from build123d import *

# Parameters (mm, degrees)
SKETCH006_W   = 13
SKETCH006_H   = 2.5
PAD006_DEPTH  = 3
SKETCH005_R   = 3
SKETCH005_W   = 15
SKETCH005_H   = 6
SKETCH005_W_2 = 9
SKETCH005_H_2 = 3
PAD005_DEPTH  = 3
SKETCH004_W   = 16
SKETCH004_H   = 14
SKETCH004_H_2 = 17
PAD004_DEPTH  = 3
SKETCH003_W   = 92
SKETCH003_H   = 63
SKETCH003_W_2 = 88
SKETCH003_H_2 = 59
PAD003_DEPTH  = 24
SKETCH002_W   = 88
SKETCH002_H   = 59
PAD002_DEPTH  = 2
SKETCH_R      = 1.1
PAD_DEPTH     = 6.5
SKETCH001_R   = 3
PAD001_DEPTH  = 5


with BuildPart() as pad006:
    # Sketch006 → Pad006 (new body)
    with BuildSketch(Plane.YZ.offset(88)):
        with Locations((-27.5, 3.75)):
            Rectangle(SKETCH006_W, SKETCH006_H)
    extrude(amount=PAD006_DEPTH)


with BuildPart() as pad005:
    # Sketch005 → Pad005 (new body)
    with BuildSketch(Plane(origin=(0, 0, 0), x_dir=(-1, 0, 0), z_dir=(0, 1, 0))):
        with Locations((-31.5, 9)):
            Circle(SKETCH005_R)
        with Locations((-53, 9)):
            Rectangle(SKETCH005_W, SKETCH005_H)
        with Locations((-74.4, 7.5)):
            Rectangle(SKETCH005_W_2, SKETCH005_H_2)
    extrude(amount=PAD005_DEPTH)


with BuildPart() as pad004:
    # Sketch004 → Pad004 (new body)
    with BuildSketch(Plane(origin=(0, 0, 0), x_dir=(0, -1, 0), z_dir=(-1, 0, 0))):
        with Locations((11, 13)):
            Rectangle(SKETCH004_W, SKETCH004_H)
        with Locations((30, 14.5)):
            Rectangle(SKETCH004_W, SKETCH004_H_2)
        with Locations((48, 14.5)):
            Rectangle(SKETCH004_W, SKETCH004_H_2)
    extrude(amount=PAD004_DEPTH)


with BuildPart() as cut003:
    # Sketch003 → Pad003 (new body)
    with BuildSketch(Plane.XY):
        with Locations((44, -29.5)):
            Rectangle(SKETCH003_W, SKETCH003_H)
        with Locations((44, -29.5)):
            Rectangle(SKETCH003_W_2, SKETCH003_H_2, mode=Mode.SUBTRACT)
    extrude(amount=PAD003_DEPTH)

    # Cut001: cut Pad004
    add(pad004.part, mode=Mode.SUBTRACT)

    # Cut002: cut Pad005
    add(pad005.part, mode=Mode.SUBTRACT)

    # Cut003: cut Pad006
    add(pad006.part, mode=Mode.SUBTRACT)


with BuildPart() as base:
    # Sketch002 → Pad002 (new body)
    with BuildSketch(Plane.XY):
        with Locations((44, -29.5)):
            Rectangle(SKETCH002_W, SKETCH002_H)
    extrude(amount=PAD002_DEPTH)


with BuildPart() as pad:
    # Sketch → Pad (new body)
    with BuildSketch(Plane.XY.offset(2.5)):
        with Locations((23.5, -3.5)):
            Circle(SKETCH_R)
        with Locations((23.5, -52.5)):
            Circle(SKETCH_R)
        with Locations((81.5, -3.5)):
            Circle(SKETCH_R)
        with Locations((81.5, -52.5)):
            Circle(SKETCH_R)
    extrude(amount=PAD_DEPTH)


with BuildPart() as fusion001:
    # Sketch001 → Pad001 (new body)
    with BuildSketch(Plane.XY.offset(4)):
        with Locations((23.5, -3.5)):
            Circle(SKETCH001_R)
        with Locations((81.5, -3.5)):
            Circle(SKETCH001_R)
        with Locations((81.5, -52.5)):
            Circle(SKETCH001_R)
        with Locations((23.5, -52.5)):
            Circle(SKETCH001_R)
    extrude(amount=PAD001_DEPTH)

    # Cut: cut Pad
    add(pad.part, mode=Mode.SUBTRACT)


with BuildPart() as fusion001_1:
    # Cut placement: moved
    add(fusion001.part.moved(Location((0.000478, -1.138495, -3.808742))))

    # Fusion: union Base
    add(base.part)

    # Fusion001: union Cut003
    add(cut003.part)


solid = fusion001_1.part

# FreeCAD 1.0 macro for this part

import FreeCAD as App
import Part
import Sketcher

doc = App.newDocument("Part")
params = doc.addObject("Spreadsheet::Sheet", "Params")
for row, (alias, value) in enumerate([
    ("sketch1_width", "13 mm"),
    ("sketch1_height", "2.5 mm"),
    ("pad1_length", "3 mm"),
    ("sketch2_diameter", "6 mm"),
    ("sketch2_width", "15 mm"),
    ("sketch2_width2", "9 mm"),
    ("sketch2_height", "6 mm"),
    ("sketch2_height2", "3 mm"),
    ("pad2_length", "3 mm"),
    ("sketch3_width", "16 mm"),
    ("sketch3_height", "14 mm"),
    ("sketch3_height2", "17 mm"),
    ("pad3_length", "3 mm"),
    ("sketch4_width", "92 mm"),
    ("sketch4_width2", "88 mm"),
    ("sketch4_height", "63 mm"),
    ("sketch4_height2", "59 mm"),
    ("pad4_length", "24 mm"),
    ("sketch5_width", "88 mm"),
    ("sketch5_height", "59 mm"),
    ("pad5_length", "2 mm"),
    ("sketch6_diameter", "2.2 mm"),
    ("pad6_length", "6.5 mm"),
    ("sketch7_diameter", "6 mm"),
    ("pad7_length", "5 mm"),
], start=1):
    params.set(f"A{row}", alias)
    params.set(f"B{row}", "=" + value)
    params.setAlias(f"B{row}", alias)

body = doc.addObject("PartDesign::Body", "Body")

# Sketch on YZ plane
sketch1 = doc.addObject("Sketcher::SketchObject", "Sketch")
body.addObject(sketch1)
sketch1.AttachmentSupport = (doc.YZ_Plane, [""])
sketch1.MapMode = "FlatFace"
sketch1.AttachmentOffset = App.Placement(App.Vector(0, 0, 88), App.Rotation())
sketch1.addGeometry(Part.LineSegment(App.Vector(-34, 5, 0), App.Vector(-34, 2.5, 0)), False)
sketch1.addGeometry(Part.LineSegment(App.Vector(-34, 2.5, 0), App.Vector(-21, 2.5, 0)), False)
sketch1.addGeometry(Part.LineSegment(App.Vector(-21, 2.5, 0), App.Vector(-21, 5, 0)), False)
sketch1.addGeometry(Part.LineSegment(App.Vector(-21, 5, 0), App.Vector(-34, 5, 0)), False)
sketch1.addConstraint(Sketcher.Constraint("Coincident", 0, 2, 1, 1))
sketch1.addConstraint(Sketcher.Constraint("Coincident", 1, 2, 2, 1))
sketch1.addConstraint(Sketcher.Constraint("Coincident", 2, 2, 3, 1))
sketch1.addConstraint(Sketcher.Constraint("Coincident", 3, 2, 0, 1))
sketch1.addConstraint(Sketcher.Constraint("Vertical", 0))
sketch1.addConstraint(Sketcher.Constraint("Horizontal", 1))
sketch1.addConstraint(Sketcher.Constraint("Vertical", 2))
sketch1.addConstraint(Sketcher.Constraint("Horizontal", 3))
sketch1.addConstraint(Sketcher.Constraint("DistanceX", 1, 1, 1, 2, 13.0))
sketch1.addConstraint(Sketcher.Constraint("DistanceY", 0, 2, 0, 1, 2.5))
sketch1.addConstraint(Sketcher.Constraint("DistanceX", 0, 2, -1, 1, 34.0))
sketch1.addConstraint(Sketcher.Constraint("DistanceY", -1, 1, 2, 2, 5.0))
sketch1.setExpression("Constraints[8]", "Params.sketch1_width")
sketch1.setExpression("Constraints[9]", "Params.sketch1_height")
pad1 = doc.addObject("PartDesign::Pad", "Pad")
body.addObject(pad1)
pad1.Profile = sketch1
pad1.setExpression("Length", "Params.pad1_length")
body2 = doc.addObject("PartDesign::Body", "Body001")
body2.AllowCompound = True

# Sketch on XZ plane
sketch2 = doc.addObject("Sketcher::SketchObject", "Sketch001")
body2.addObject(sketch2)
sketch2.AttachmentSupport = (doc.getObject("XZ_Plane001"), [""])
sketch2.MapMode = "FlatFace"
sketch2.addGeometry(Part.Circle(App.Vector(31.5, 9, 0), App.Vector(0, 0, 1), 3), False)
sketch2.addGeometry(Part.LineSegment(App.Vector(60.5, 12, 0), App.Vector(60.5, 6, 0)), False)
sketch2.addGeometry(Part.LineSegment(App.Vector(60.5, 6, 0), App.Vector(45.5, 6, 0)), False)
sketch2.addGeometry(Part.LineSegment(App.Vector(45.5, 6, 0), App.Vector(45.5, 12, 0)), False)
sketch2.addGeometry(Part.LineSegment(App.Vector(45.5, 12, 0), App.Vector(60.5, 12, 0)), False)
sketch2.addGeometry(Part.LineSegment(App.Vector(78.9, 9, 0), App.Vector(78.9, 6, 0)), False)
sketch2.addGeometry(Part.LineSegment(App.Vector(78.9, 6, 0), App.Vector(69.9, 6, 0)), False)
sketch2.addGeometry(Part.LineSegment(App.Vector(69.9, 6, 0), App.Vector(69.9, 9, 0)), False)
sketch2.addGeometry(Part.LineSegment(App.Vector(69.9, 9, 0), App.Vector(78.9, 9, 0)), False)
sketch2.addConstraint(Sketcher.Constraint("Coincident", 1, 2, 2, 1))
sketch2.addConstraint(Sketcher.Constraint("Coincident", 2, 2, 3, 1))
sketch2.addConstraint(Sketcher.Constraint("Coincident", 3, 2, 4, 1))
sketch2.addConstraint(Sketcher.Constraint("Coincident", 4, 2, 1, 1))
sketch2.addConstraint(Sketcher.Constraint("Coincident", 5, 2, 6, 1))
sketch2.addConstraint(Sketcher.Constraint("Coincident", 6, 2, 7, 1))
sketch2.addConstraint(Sketcher.Constraint("Coincident", 7, 2, 8, 1))
sketch2.addConstraint(Sketcher.Constraint("Coincident", 8, 2, 5, 1))
sketch2.addConstraint(Sketcher.Constraint("Vertical", 1))
sketch2.addConstraint(Sketcher.Constraint("Horizontal", 2))
sketch2.addConstraint(Sketcher.Constraint("Vertical", 3))
sketch2.addConstraint(Sketcher.Constraint("Horizontal", 4))
sketch2.addConstraint(Sketcher.Constraint("Vertical", 5))
sketch2.addConstraint(Sketcher.Constraint("Horizontal", 6))
sketch2.addConstraint(Sketcher.Constraint("Vertical", 7))
sketch2.addConstraint(Sketcher.Constraint("Horizontal", 8))
sketch2.addConstraint(Sketcher.Constraint("Horizontal", 2, 2, 5, 2))
sketch2.addConstraint(Sketcher.Constraint("Horizontal", 0, 3, 7, 2))
sketch2.addConstraint(Sketcher.Constraint("Diameter", 0, 6.0))
sketch2.addConstraint(Sketcher.Constraint("DistanceX", 2, 2, 2, 1, 15.0))
sketch2.addConstraint(Sketcher.Constraint("DistanceX", 6, 2, 6, 1, 9.0))
sketch2.addConstraint(Sketcher.Constraint("DistanceY", 1, 2, 1, 1, 6.0))
sketch2.addConstraint(Sketcher.Constraint("DistanceY", 5, 2, 5, 1, 3.0))
sketch2.addConstraint(Sketcher.Constraint("DistanceY", -1, 1, 0, 3, 9.0))
sketch2.addConstraint(Sketcher.Constraint("DistanceX", 0, 3, 1, 2, 29.0))
sketch2.addConstraint(Sketcher.Constraint("DistanceX", -1, 1, 0, 3, 31.5))
sketch2.addConstraint(Sketcher.Constraint("DistanceX", -1, 1, 5, 2, 78.9))
sketch2.setExpression("Constraints[18]", "Params.sketch2_diameter")
sketch2.setExpression("Constraints[19]", "Params.sketch2_width")
sketch2.setExpression("Constraints[20]", "Params.sketch2_width2")
sketch2.setExpression("Constraints[21]", "Params.sketch2_height")
sketch2.setExpression("Constraints[22]", "Params.sketch2_height2")
pad2 = doc.addObject("PartDesign::Pad", "Pad001")
body2.addObject(pad2)
pad2.Profile = sketch2
pad2.setExpression("Length", "Params.pad2_length")
pad2.Reversed = True
body3 = doc.addObject("PartDesign::Body", "Body002")
body3.AllowCompound = True

# Sketch on YZ plane
sketch3 = doc.addObject("Sketcher::SketchObject", "Sketch002")
body3.addObject(sketch3)
sketch3.AttachmentSupport = (doc.getObject("YZ_Plane002"), [""])
sketch3.MapMode = "FlatFace"
sketch3.addGeometry(Part.LineSegment(App.Vector(-3, 20, 0), App.Vector(-3, 6, 0)), False)
sketch3.addGeometry(Part.LineSegment(App.Vector(-3, 6, 0), App.Vector(-19, 6, 0)), False)
sketch3.addGeometry(Part.LineSegment(App.Vector(-19, 6, 0), App.Vector(-19, 20, 0)), False)
sketch3.addGeometry(Part.LineSegment(App.Vector(-19, 20, 0), App.Vector(-3, 20, 0)), False)
sketch3.addGeometry(Part.LineSegment(App.Vector(-22, 23, 0), App.Vector(-22, 6, 0)), False)
sketch3.addGeometry(Part.LineSegment(App.Vector(-22, 6, 0), App.Vector(-38, 6, 0)), False)
sketch3.addGeometry(Part.LineSegment(App.Vector(-38, 6, 0), App.Vector(-38, 23, 0)), False)
sketch3.addGeometry(Part.LineSegment(App.Vector(-38, 23, 0), App.Vector(-22, 23, 0)), False)
sketch3.addGeometry(Part.LineSegment(App.Vector(-40, 23, 0), App.Vector(-40, 6, 0)), False)
sketch3.addGeometry(Part.LineSegment(App.Vector(-40, 6, 0), App.Vector(-56, 6, 0)), False)
sketch3.addGeometry(Part.LineSegment(App.Vector(-56, 6, 0), App.Vector(-56, 23, 0)), False)
sketch3.addGeometry(Part.LineSegment(App.Vector(-56, 23, 0), App.Vector(-40, 23, 0)), False)
sketch3.addConstraint(Sketcher.Constraint("Coincident", 0, 2, 1, 1))
sketch3.addConstraint(Sketcher.Constraint("Coincident", 1, 2, 2, 1))
sketch3.addConstraint(Sketcher.Constraint("Coincident", 2, 2, 3, 1))
sketch3.addConstraint(Sketcher.Constraint("Coincident", 3, 2, 0, 1))
sketch3.addConstraint(Sketcher.Constraint("Coincident", 4, 2, 5, 1))
sketch3.addConstraint(Sketcher.Constraint("Coincident", 5, 2, 6, 1))
sketch3.addConstraint(Sketcher.Constraint("Coincident", 6, 2, 7, 1))
sketch3.addConstraint(Sketcher.Constraint("Coincident", 7, 2, 4, 1))
sketch3.addConstraint(Sketcher.Constraint("Coincident", 8, 2, 9, 1))
sketch3.addConstraint(Sketcher.Constraint("Coincident", 9, 2, 10, 1))
sketch3.addConstraint(Sketcher.Constraint("Coincident", 10, 2, 11, 1))
sketch3.addConstraint(Sketcher.Constraint("Coincident", 11, 2, 8, 1))
sketch3.addConstraint(Sketcher.Constraint("Vertical", 0))
sketch3.addConstraint(Sketcher.Constraint("Horizontal", 1))
sketch3.addConstraint(Sketcher.Constraint("Vertical", 2))
sketch3.addConstraint(Sketcher.Constraint("Horizontal", 3))
sketch3.addConstraint(Sketcher.Constraint("Vertical", 4))
sketch3.addConstraint(Sketcher.Constraint("Horizontal", 5))
sketch3.addConstraint(Sketcher.Constraint("Vertical", 6))
sketch3.addConstraint(Sketcher.Constraint("Horizontal", 7))
sketch3.addConstraint(Sketcher.Constraint("Vertical", 8))
sketch3.addConstraint(Sketcher.Constraint("Horizontal", 9))
sketch3.addConstraint(Sketcher.Constraint("Vertical", 10))
sketch3.addConstraint(Sketcher.Constraint("Horizontal", 11))
sketch3.addConstraint(Sketcher.Constraint("Horizontal", 1, 2, 4, 2))
sketch3.addConstraint(Sketcher.Constraint("Horizontal", 5, 2, 8, 2))
sketch3.addConstraint(Sketcher.Constraint("Horizontal", 7, 2, 10, 2))
sketch3.addConstraint(Sketcher.Constraint("Equal", 3, 5))
sketch3.addConstraint(Sketcher.Constraint("Equal", 7, 9))
sketch3.addConstraint(Sketcher.Constraint("DistanceX", 1, 2, 1, 1, 16.0))
sketch3.addConstraint(Sketcher.Constraint("DistanceY", 0, 2, 0, 1, 14.0))
sketch3.addConstraint(Sketcher.Constraint("DistanceY", 4, 2, 4, 1, 17.0))
sketch3.addConstraint(Sketcher.Constraint("DistanceX", 0, 2, -1, 1, 3.0))
sketch3.addConstraint(Sketcher.Constraint("DistanceY", -1, 1, 0, 2, 6.0))
sketch3.addConstraint(Sketcher.Constraint("DistanceX", 4, 2, -1, 1, 22.0))
sketch3.addConstraint(Sketcher.Constraint("DistanceX", 8, 2, -1, 1, 40.0))
sketch3.setExpression("Constraints[29]", "Params.sketch3_width")
sketch3.setExpression("Constraints[30]", "Params.sketch3_height")
sketch3.setExpression("Constraints[31]", "Params.sketch3_height2")
pad3 = doc.addObject("PartDesign::Pad", "Pad002")
body3.addObject(pad3)
pad3.Profile = sketch3
pad3.setExpression("Length", "Params.pad3_length")
pad3.Reversed = True
body4 = doc.addObject("PartDesign::Body", "Body003")

# Sketch on XY plane
sketch4 = doc.addObject("Sketcher::SketchObject", "Sketch003")
body4.addObject(sketch4)
sketch4.AttachmentSupport = (doc.getObject("XY_Plane003"), [""])
sketch4.MapMode = "FlatFace"
sketch4.addGeometry(Part.LineSegment(App.Vector(-2, 2, 0), App.Vector(-2, -61, 0)), False)
sketch4.addGeometry(Part.LineSegment(App.Vector(-2, -61, 0), App.Vector(90, -61, 0)), False)
sketch4.addGeometry(Part.LineSegment(App.Vector(90, -61, 0), App.Vector(90, 2, 0)), False)
sketch4.addGeometry(Part.LineSegment(App.Vector(90, 2, 0), App.Vector(-2, 2, 0)), False)
sketch4.addGeometry(Part.LineSegment(App.Vector(88, -59, 0), App.Vector(0, -59, 0)), False)
sketch4.addGeometry(Part.LineSegment(App.Vector(0, -59, 0), App.Vector(0, 0, 0)), False)
sketch4.addGeometry(Part.LineSegment(App.Vector(0, 0, 0), App.Vector(88, 0, 0)), False)
sketch4.addGeometry(Part.LineSegment(App.Vector(88, 0, 0), App.Vector(88, -59, 0)), False)
sketch4.addConstraint(Sketcher.Constraint("Coincident", 0, 2, 1, 1))
sketch4.addConstraint(Sketcher.Constraint("Coincident", 1, 2, 2, 1))
sketch4.addConstraint(Sketcher.Constraint("Coincident", 2, 2, 3, 1))
sketch4.addConstraint(Sketcher.Constraint("Coincident", 3, 2, 0, 1))
sketch4.addConstraint(Sketcher.Constraint("Coincident", 4, 2, 5, 1))
sketch4.addConstraint(Sketcher.Constraint("Coincident", 5, 2, 6, 1))
sketch4.addConstraint(Sketcher.Constraint("Coincident", 6, 2, 7, 1))
sketch4.addConstraint(Sketcher.Constraint("Coincident", 7, 2, 4, 1))
sketch4.addConstraint(Sketcher.Constraint("Vertical", 0))
sketch4.addConstraint(Sketcher.Constraint("Horizontal", 1))
sketch4.addConstraint(Sketcher.Constraint("Vertical", 2))
sketch4.addConstraint(Sketcher.Constraint("Horizontal", 3))
sketch4.addConstraint(Sketcher.Constraint("Horizontal", 4))
sketch4.addConstraint(Sketcher.Constraint("Vertical", 5))
sketch4.addConstraint(Sketcher.Constraint("Horizontal", 6))
sketch4.addConstraint(Sketcher.Constraint("Vertical", 7))
sketch4.addConstraint(Sketcher.Constraint("Coincident", 5, 2, -1, 1))
sketch4.addConstraint(Sketcher.Constraint("DistanceX", 1, 1, 1, 2, 92.0))
sketch4.addConstraint(Sketcher.Constraint("DistanceX", 4, 2, 4, 1, 88.0))
sketch4.addConstraint(Sketcher.Constraint("DistanceY", 0, 2, 0, 1, 63.0))
sketch4.addConstraint(Sketcher.Constraint("DistanceY", 5, 1, 5, 2, 59.0))
sketch4.addConstraint(Sketcher.Constraint("DistanceX", 0, 2, -1, 1, 2.0))
sketch4.addConstraint(Sketcher.Constraint("DistanceY", 0, 2, -1, 1, 61.0))
sketch4.setExpression("Constraints[17]", "Params.sketch4_width")
sketch4.setExpression("Constraints[18]", "Params.sketch4_width2")
sketch4.setExpression("Constraints[19]", "Params.sketch4_height")
sketch4.setExpression("Constraints[20]", "Params.sketch4_height2")
pad4 = doc.addObject("PartDesign::Pad", "Pad003")
body4.addObject(pad4)
pad4.Profile = sketch4
pad4.setExpression("Length", "Params.pad4_length")
doc.recompute()

boolean = doc.addObject("PartDesign::Boolean", "Boolean")
body4.addObject(boolean)
boolean.Type = "Cut"
boolean.addObjects([body3])
doc.recompute()

boolean2 = doc.addObject("PartDesign::Boolean", "Boolean001")
body4.addObject(boolean2)
boolean2.Type = "Cut"
boolean2.addObjects([body2])
doc.recompute()

boolean3 = doc.addObject("PartDesign::Boolean", "Boolean002")
body4.addObject(boolean3)
boolean3.Type = "Cut"
boolean3.addObjects([body])
body5 = doc.addObject("PartDesign::Body", "Body004")

# Sketch on XY plane
sketch5 = doc.addObject("Sketcher::SketchObject", "Sketch004")
body5.addObject(sketch5)
sketch5.AttachmentSupport = (doc.getObject("XY_Plane004"), [""])
sketch5.MapMode = "FlatFace"
sketch5.addGeometry(Part.LineSegment(App.Vector(0, 0, 0), App.Vector(0, -59, 0)), False)
sketch5.addGeometry(Part.LineSegment(App.Vector(0, -59, 0), App.Vector(88, -59, 0)), False)
sketch5.addGeometry(Part.LineSegment(App.Vector(88, -59, 0), App.Vector(88, 0, 0)), False)
sketch5.addGeometry(Part.LineSegment(App.Vector(88, 0, 0), App.Vector(0, 0, 0)), False)
sketch5.addConstraint(Sketcher.Constraint("Coincident", 0, 2, 1, 1))
sketch5.addConstraint(Sketcher.Constraint("Coincident", 1, 2, 2, 1))
sketch5.addConstraint(Sketcher.Constraint("Coincident", 2, 2, 3, 1))
sketch5.addConstraint(Sketcher.Constraint("Coincident", 3, 2, 0, 1))
sketch5.addConstraint(Sketcher.Constraint("Vertical", 0))
sketch5.addConstraint(Sketcher.Constraint("Horizontal", 1))
sketch5.addConstraint(Sketcher.Constraint("Vertical", 2))
sketch5.addConstraint(Sketcher.Constraint("Horizontal", 3))
sketch5.addConstraint(Sketcher.Constraint("Coincident", 3, 2, -1, 1))
sketch5.addConstraint(Sketcher.Constraint("DistanceX", 1, 1, 1, 2, 88.0))
sketch5.addConstraint(Sketcher.Constraint("DistanceY", 0, 2, 0, 1, 59.0))
sketch5.setExpression("Constraints[9]", "Params.sketch5_width")
sketch5.setExpression("Constraints[10]", "Params.sketch5_height")
pad5 = doc.addObject("PartDesign::Pad", "Pad004")
body5.addObject(pad5)
pad5.Profile = sketch5
pad5.setExpression("Length", "Params.pad5_length")
body6 = doc.addObject("PartDesign::Body", "Body005")
body6.AllowCompound = True

# Sketch on XY plane
sketch6 = doc.addObject("Sketcher::SketchObject", "Sketch005")
body6.addObject(sketch6)
sketch6.AttachmentSupport = (doc.getObject("XY_Plane005"), [""])
sketch6.MapMode = "FlatFace"
sketch6.AttachmentOffset = App.Placement(App.Vector(0, 0, 2.5), App.Rotation())
sketch6.addGeometry(Part.Circle(App.Vector(23.5, -3.5, 0), App.Vector(0, 0, 1), 1.1), False)
sketch6.addGeometry(Part.Circle(App.Vector(23.5, -52.5, 0), App.Vector(0, 0, 1), 1.1), False)
sketch6.addGeometry(Part.Circle(App.Vector(81.5, -3.5, 0), App.Vector(0, 0, 1), 1.1), False)
sketch6.addGeometry(Part.Circle(App.Vector(81.5, -52.5, 0), App.Vector(0, 0, 1), 1.1), False)
sketch6.addConstraint(Sketcher.Constraint("Equal", 0, 1))
sketch6.addConstraint(Sketcher.Constraint("Equal", 1, 2))
sketch6.addConstraint(Sketcher.Constraint("Equal", 2, 3))
sketch6.addConstraint(Sketcher.Constraint("Horizontal", 0, 3, 2, 3))
sketch6.addConstraint(Sketcher.Constraint("Horizontal", 1, 3, 3, 3))
sketch6.addConstraint(Sketcher.Constraint("Vertical", 0, 3, 1, 3))
sketch6.addConstraint(Sketcher.Constraint("Vertical", 2, 3, 3, 3))
sketch6.addConstraint(Sketcher.Constraint("Diameter", 0, 2.2))
sketch6.addConstraint(Sketcher.Constraint("DistanceY", 1, 3, 0, 3, 49.0))
sketch6.addConstraint(Sketcher.Constraint("DistanceX", 0, 3, 2, 3, 58.0))
sketch6.addConstraint(Sketcher.Constraint("DistanceX", -1, 1, 0, 3, 23.5))
sketch6.addConstraint(Sketcher.Constraint("DistanceY", 0, 3, -1, 1, 3.5))
sketch6.setExpression("Constraints[7]", "Params.sketch6_diameter")
pad6 = doc.addObject("PartDesign::Pad", "Pad005")
body6.addObject(pad6)
pad6.Profile = sketch6
pad6.setExpression("Length", "Params.pad6_length")
body7 = doc.addObject("PartDesign::Body", "Body006")
body7.AllowCompound = True

# Sketch on XY plane
sketch7 = doc.addObject("Sketcher::SketchObject", "Sketch006")
body7.addObject(sketch7)
sketch7.AttachmentSupport = (doc.getObject("XY_Plane006"), [""])
sketch7.MapMode = "FlatFace"
sketch7.AttachmentOffset = App.Placement(App.Vector(0, 0, 4), App.Rotation())
sketch7.addGeometry(Part.Circle(App.Vector(23.5, -3.5, 0), App.Vector(0, 0, 1), 3), False)
sketch7.addGeometry(Part.Circle(App.Vector(81.5, -3.5, 0), App.Vector(0, 0, 1), 3), False)
sketch7.addGeometry(Part.Circle(App.Vector(81.5, -52.5, 0), App.Vector(0, 0, 1), 3), False)
sketch7.addGeometry(Part.Circle(App.Vector(23.5, -52.5, 0), App.Vector(0, 0, 1), 3), False)
sketch7.addConstraint(Sketcher.Constraint("Equal", 0, 1))
sketch7.addConstraint(Sketcher.Constraint("Equal", 1, 2))
sketch7.addConstraint(Sketcher.Constraint("Equal", 2, 3))
sketch7.addConstraint(Sketcher.Constraint("Horizontal", 0, 3, 1, 3))
sketch7.addConstraint(Sketcher.Constraint("Horizontal", 2, 3, 3, 3))
sketch7.addConstraint(Sketcher.Constraint("Vertical", 1, 3, 2, 3))
sketch7.addConstraint(Sketcher.Constraint("Vertical", 0, 3, 3, 3))
sketch7.addConstraint(Sketcher.Constraint("Diameter", 0, 6.0))
sketch7.addConstraint(Sketcher.Constraint("DistanceX", 0, 3, 1, 3, 58.0))
sketch7.addConstraint(Sketcher.Constraint("DistanceY", 2, 3, 1, 3, 49.0))
sketch7.addConstraint(Sketcher.Constraint("DistanceX", -1, 1, 0, 3, 23.5))
sketch7.addConstraint(Sketcher.Constraint("DistanceY", 0, 3, -1, 1, 3.5))
sketch7.setExpression("Constraints[7]", "Params.sketch7_diameter")
pad7 = doc.addObject("PartDesign::Pad", "Pad006")
body7.addObject(pad7)
pad7.Profile = sketch7
pad7.setExpression("Length", "Params.pad7_length")
doc.recompute()

boolean4 = doc.addObject("PartDesign::Boolean", "Boolean003")
body7.addObject(boolean4)
boolean4.Type = "Cut"
boolean4.addObjects([body6])
body8 = doc.addObject("PartDesign::Body", "Body007")
body8.AllowCompound = True
doc.recompute()

body7.Placement = App.Placement(App.Vector(0.000478, -1.138495, -3.808742), App.Rotation(App.Vector(0, 0, 1), 0))
boolean5 = doc.addObject("PartDesign::Boolean", "Boolean004")
body8.addObject(boolean5)
boolean5.Type = "Fuse"
boolean5.addObjects([body7])
doc.recompute()

boolean6 = doc.addObject("PartDesign::Boolean", "Boolean005")
body8.addObject(boolean6)
boolean6.Type = "Fuse"
boolean6.addObjects([body5])
doc.recompute()

boolean7 = doc.addObject("PartDesign::Boolean", "Boolean006")
body8.addObject(boolean7)
boolean7.Type = "Fuse"
boolean7.addObjects([body4])

doc.recompute()
